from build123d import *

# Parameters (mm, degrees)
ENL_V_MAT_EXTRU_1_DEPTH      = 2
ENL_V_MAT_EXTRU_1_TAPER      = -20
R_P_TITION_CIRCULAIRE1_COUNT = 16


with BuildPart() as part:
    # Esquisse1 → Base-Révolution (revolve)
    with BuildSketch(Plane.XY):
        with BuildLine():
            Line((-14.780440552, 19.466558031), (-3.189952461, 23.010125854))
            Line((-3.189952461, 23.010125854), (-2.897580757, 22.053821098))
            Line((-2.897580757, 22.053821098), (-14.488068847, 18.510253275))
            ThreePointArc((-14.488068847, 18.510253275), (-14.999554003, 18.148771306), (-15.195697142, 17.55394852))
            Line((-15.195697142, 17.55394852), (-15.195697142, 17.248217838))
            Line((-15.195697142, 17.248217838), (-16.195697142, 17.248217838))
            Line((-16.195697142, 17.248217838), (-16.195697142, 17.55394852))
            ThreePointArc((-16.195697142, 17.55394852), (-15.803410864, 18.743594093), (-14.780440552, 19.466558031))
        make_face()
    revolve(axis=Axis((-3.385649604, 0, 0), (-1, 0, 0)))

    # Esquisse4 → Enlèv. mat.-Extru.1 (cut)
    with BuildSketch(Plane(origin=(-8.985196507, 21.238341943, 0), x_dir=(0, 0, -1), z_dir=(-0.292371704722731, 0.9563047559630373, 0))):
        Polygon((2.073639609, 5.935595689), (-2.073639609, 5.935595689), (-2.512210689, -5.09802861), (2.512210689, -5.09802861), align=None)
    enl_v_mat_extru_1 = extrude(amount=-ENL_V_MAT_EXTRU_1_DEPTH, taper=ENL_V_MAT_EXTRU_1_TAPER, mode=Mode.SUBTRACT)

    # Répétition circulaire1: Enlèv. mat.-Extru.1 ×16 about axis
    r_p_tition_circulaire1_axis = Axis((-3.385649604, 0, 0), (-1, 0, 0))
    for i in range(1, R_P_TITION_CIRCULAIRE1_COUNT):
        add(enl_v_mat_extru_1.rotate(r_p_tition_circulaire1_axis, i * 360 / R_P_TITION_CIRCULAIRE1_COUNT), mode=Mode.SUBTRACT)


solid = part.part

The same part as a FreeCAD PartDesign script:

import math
import FreeCAD as App
import Part
import Sketcher

V = App.Vector
Q = App.Units.Quantity


def add_polygon(sketch, points):
    """Adds a closed chain of lines whose ends are joined by coincident constraints."""
    first, n = sketch.GeometryCount, len(points)
    for a, b in zip(points, points[1:] + points[:1]):
        sketch.addGeometry(Part.LineSegment(App.Vector(*a, 0), App.Vector(*b, 0)), False)
    for i in range(n):
        sketch.addConstraint(Sketcher.Constraint("Coincident", first + i, 2, first + (i + 1) % n, 1))

doc = App.newDocument("Part")
params = doc.addObject("Spreadsheet::Sheet", "Params")
for row, (alias, value) in enumerate([
    ("sketch1_radius", "2 mm"),
    ("sketch1_radius2", "1 mm"),
    ("revolution_angle", "360 deg"),
    ("pocket1_length", "2 mm"),
    ("pocket1_taper", "20 deg"),
], start=1):
    params.set(f"A{row}", alias)
    params.set(f"B{row}", "=" + value)
    params.setAlias(f"B{row}", alias)

body = doc.addObject("PartDesign::Body", "Body")

sketch1 = body.newObject("Sketcher::SketchObject", "Sketch")
sketch1.AttachmentSupport = (doc.getObject("XY_Plane"), [""])
sketch1.MapMode = "FlatFace"
sketch1.addGeometry([
    Part.LineSegment(V(-3.19, 23.01, 0), V(-14.78, 19.47, 0)),
    Part.ArcOfCircle(Part.Circle(V(-14.2, 17.55, 0), V(0, 0, 1), 2), math.radians(107), math.radians(180)),
    Part.LineSegment(V(-16.2, 17.55, 0), V(-16.2, 17.25, 0)),
    Part.LineSegment(V(-16.2, 17.25, 0), V(-15.2, 17.25, 0)),
    Part.LineSegment(V(-15.2, 17.25, 0), V(-15.2, 17.55, 0)),
    Part.ArcOfCircle(Part.Circle(V(-14.2, 17.55, 0), V(0, 0, 1), 1), math.radians(107), math.radians(180)),
    Part.LineSegment(V(-14.49, 18.51, 0), V(-2.9, 22.05, 0)),
    Part.LineSegment(V(-2.9, 22.05, 0), V(-3.19, 23.01, 0)),
], False)
sketch1.addConstraint([
    Sketcher.Constraint("Tangent", 0, 2, 1, 1),
    Sketcher.Constraint("Tangent", 1, 2, 2, 1),
    Sketcher.Constraint("Coincident", 2, 2, 3, 1),
    Sketcher.Constraint("Coincident", 3, 2, 4, 1),
    Sketcher.Constraint("Tangent", 4, 2, 5, 2),
    Sketcher.Constraint("Tangent", 5, 1, 6, 1),
    Sketcher.Constraint("Coincident", 6, 2, 7, 1),
    Sketcher.Constraint("Coincident", 7, 2, 0, 1),
    Sketcher.Constraint("Vertical", 2),
    Sketcher.Constraint("Horizontal", 3),
    Sketcher.Constraint("Vertical", 4),
    Sketcher.Constraint("Coincident", 5, 3, 1, 3),
    Sketcher.Constraint("Parallel", 0, 6),
    Sketcher.Constraint("Perpendicular", 6, 7),
    Sketcher.Constraint("Radius", 1, Q("2 mm")),
    Sketcher.Constraint("Radius", 5, Q("1 mm")),
    Sketcher.Constraint("Angle", 0, Q("-163 deg")),
    Sketcher.Constraint("DistanceY", 2, 2, 2, 1, Q("0.305731 mm")),
    Sketcher.Constraint("DistanceY", -1, 1, 1, 3, Q("17.553949 mm")),
    Sketcher.Constraint("DistanceX", 0, 2, -1, 1, Q("14.780441 mm")),
    Sketcher.Constraint("DistanceX", 6, 2, -1, 1, Q("2.897581 mm")),
])
sketch1.setExpression("Constraints[14]", "Params.sketch1_radius")
sketch1.setExpression("Constraints[15]", "Params.sketch1_radius2")
revolution = body.newObject("PartDesign::Revolution", "Revolution")
revolution.Profile = sketch1
revolution.ReferenceAxis = (sketch1, ["H_Axis"])
revolution.setExpression("Angle", "Params.revolution_angle")

sketch2 = body.newObject("Sketcher::SketchObject", "Sketch001")
sketch2.Placement = App.Placement(V(-8.985197, 21.238342, 0), App.Rotation(V(0, 0, -1), V(-0.956304756, -0.292371705, 0), V(-0.292371705, 0.956304756, 0), "ZXY"))
add_polygon(sketch2, [(2.1, 5.9), (-2.1, 5.9), (-2.5, -5.1), (2.5, -5.1)])
sketch2.addConstraint([
    Sketcher.Constraint("Horizontal", 0),
    Sketcher.Constraint("Horizontal", 2),
    Sketcher.Constraint("Equal", 1, 3),
    Sketcher.Constraint("DistanceX", 0, 2, 0, 1, Q("4.147279 mm")),
    Sketcher.Constraint("DistanceX", 2, 1, 2, 2, Q("5.024421 mm")),
    Sketcher.Constraint("DistanceX", 0, 2, -1, 1, Q("2.07364 mm")),
    Sketcher.Constraint("DistanceY", 1, 2, -1, 1, Q("5.098029 mm")),
    Sketcher.Constraint("Distance", 1, Q("11.042337 mm")),
])
pocket1 = body.newObject("PartDesign::Pocket", "Pocket")
pocket1.Profile = sketch2
pocket1.setExpression("Length", "Params.pocket1_length")
pocket1.setExpression("TaperAngle", "Params.pocket1_taper")
doc.recompute()

polarpattern = body.newObject("PartDesign::PolarPattern", "PolarPattern")
polarpattern.Originals = [pocket1]
polarpattern.Axis = (doc.getObject("X_Axis"), [""])
polarpattern.Angle = 360
polarpattern.Occurrences = 16
body.Tip = polarpattern

doc.recompute()
